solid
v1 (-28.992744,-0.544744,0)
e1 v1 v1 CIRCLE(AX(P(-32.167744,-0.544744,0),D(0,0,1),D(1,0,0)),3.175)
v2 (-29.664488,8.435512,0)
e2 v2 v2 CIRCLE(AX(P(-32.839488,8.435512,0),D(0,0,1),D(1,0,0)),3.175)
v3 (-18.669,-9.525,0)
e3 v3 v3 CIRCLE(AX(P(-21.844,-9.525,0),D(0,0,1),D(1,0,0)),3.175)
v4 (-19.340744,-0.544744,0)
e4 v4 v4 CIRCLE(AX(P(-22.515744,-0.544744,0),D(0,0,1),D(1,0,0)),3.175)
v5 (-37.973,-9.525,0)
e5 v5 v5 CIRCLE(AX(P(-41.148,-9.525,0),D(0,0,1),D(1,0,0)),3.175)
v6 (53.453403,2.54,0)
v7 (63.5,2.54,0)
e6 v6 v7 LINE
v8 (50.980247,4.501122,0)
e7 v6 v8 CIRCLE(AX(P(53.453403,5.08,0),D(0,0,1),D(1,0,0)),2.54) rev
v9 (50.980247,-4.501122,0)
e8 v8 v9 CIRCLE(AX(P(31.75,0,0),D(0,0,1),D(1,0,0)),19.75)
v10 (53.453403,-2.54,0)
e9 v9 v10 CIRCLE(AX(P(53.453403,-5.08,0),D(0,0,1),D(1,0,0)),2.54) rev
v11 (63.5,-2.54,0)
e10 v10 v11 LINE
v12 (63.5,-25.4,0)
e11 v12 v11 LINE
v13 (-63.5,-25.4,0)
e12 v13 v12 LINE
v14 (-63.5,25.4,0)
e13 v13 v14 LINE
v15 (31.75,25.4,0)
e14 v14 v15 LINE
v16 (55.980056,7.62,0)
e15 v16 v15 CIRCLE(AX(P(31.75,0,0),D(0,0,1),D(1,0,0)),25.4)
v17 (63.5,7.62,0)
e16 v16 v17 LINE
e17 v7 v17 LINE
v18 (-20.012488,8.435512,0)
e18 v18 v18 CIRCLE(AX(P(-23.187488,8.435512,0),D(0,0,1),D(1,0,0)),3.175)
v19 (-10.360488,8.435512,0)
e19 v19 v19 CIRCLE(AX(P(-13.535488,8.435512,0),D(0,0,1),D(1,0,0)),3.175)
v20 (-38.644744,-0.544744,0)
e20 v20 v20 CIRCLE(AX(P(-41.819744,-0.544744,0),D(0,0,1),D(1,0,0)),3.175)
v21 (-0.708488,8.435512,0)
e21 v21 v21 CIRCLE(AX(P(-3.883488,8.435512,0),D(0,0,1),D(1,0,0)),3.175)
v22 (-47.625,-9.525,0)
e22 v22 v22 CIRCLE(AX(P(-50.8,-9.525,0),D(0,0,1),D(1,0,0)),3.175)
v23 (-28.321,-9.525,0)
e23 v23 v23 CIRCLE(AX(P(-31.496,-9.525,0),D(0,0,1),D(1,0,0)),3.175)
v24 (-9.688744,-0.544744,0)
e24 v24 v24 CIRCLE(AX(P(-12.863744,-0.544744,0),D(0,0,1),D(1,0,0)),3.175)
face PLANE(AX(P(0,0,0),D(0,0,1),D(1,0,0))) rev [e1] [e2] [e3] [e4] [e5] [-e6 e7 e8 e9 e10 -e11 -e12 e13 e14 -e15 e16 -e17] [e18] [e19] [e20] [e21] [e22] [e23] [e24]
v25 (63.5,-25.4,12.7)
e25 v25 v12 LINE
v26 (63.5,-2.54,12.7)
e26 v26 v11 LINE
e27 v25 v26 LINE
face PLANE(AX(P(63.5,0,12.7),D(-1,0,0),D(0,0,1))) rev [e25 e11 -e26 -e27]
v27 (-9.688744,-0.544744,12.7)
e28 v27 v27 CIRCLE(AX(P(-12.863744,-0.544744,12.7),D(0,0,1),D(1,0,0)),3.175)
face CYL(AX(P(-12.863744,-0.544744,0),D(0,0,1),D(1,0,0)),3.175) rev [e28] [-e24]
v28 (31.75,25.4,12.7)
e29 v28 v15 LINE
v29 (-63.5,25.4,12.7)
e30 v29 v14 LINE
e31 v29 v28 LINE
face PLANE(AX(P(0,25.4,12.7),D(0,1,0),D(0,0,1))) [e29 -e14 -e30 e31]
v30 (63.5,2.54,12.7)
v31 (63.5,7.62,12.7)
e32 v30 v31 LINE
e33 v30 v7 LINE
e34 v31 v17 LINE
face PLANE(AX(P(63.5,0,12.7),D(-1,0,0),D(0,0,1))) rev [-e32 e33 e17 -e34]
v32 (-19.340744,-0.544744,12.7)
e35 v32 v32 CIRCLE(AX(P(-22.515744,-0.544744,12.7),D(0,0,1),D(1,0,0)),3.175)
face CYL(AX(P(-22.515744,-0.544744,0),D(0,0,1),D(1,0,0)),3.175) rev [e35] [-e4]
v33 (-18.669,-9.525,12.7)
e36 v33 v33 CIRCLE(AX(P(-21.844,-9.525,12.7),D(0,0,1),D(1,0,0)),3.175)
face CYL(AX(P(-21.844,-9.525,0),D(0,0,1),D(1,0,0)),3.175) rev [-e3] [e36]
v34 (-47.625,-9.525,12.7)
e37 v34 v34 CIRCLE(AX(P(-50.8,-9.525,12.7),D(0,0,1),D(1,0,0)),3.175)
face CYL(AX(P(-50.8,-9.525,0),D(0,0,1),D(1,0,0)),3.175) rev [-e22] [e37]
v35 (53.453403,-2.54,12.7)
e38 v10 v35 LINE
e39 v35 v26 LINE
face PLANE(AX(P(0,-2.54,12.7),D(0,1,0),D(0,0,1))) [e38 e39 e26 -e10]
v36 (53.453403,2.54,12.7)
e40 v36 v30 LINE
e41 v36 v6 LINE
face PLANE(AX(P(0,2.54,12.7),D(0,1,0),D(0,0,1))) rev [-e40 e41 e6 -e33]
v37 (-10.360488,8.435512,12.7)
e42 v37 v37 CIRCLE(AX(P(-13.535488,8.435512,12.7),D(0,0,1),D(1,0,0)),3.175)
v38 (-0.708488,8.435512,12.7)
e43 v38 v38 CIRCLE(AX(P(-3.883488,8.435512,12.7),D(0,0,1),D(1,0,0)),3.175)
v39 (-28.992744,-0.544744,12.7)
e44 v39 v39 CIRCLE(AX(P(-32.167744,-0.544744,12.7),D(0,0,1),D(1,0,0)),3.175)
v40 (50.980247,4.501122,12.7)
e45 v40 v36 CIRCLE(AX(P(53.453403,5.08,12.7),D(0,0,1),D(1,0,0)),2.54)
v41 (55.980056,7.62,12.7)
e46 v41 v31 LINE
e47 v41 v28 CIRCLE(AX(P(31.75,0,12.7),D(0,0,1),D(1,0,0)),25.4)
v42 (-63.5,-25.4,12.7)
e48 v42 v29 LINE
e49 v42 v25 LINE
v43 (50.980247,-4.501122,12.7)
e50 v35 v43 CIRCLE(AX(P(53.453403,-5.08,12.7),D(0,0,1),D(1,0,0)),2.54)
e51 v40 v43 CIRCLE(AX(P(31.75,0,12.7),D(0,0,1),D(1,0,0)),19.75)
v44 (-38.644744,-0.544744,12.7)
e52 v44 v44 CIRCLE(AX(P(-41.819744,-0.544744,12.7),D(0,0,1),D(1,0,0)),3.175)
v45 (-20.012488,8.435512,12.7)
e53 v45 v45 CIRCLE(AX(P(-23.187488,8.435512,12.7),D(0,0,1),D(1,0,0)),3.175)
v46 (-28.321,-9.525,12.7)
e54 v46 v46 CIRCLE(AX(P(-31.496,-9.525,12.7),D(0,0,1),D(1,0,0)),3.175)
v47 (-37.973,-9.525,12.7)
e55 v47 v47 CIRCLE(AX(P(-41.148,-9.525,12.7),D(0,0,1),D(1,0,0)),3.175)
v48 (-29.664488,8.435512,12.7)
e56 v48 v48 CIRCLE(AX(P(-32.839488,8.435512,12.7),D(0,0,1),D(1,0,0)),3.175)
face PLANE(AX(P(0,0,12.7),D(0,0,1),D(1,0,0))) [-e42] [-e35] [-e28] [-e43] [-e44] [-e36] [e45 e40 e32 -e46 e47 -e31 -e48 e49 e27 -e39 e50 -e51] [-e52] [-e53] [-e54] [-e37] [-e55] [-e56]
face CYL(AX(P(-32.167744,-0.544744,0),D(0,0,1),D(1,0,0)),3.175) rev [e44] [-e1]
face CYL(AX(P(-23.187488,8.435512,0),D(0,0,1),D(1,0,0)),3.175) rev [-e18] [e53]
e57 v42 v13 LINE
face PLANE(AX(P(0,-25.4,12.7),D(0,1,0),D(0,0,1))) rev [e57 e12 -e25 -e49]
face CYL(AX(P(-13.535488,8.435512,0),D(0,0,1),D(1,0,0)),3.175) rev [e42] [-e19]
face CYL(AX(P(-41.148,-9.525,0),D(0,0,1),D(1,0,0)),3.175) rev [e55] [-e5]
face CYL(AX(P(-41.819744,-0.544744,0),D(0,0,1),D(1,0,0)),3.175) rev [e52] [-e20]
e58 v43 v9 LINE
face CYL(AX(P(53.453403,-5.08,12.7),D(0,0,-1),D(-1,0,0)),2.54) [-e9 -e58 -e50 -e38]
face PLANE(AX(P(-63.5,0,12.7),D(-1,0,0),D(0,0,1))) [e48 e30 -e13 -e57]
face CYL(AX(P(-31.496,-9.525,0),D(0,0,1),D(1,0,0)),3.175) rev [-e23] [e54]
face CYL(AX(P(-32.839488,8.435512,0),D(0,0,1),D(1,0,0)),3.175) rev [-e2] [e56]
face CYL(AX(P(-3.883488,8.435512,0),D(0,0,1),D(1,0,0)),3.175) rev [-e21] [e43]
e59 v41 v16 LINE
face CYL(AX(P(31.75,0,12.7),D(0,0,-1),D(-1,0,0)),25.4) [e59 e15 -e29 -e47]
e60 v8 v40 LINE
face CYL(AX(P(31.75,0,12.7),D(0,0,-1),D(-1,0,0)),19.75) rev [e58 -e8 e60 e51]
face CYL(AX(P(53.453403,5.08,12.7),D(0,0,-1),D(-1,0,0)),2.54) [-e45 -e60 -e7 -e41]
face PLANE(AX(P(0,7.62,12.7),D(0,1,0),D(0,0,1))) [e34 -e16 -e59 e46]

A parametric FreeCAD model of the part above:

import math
import FreeCAD as App
import Part
import Sketcher

V = App.Vector
Q = App.Units.Quantity


def edges_at(feature, points):
    """Names of the edges that pass closest to the given points."""
    edges = feature.Shape.Edges
    near = lambda p: min(range(len(edges)), key=lambda i: edges[i].distToShape(Part.Vertex(*p))[0])
    return sorted({f"Edge{near(p) + 1}" for p in points})

doc = App.newDocument("Part")
body = doc.addObject("PartDesign::Body", "Body")

# Sketch on XY plane
sketch1 = body.newObject("Sketcher::SketchObject", "Sketch")
sketch1.AttachmentSupport = (doc.getObject("XY_Plane"), [""])
sketch1.MapMode = "FlatFace"
sketch1.addGeometry([
    Part.LineSegment(V(31.75, 25.4, 0), V(-63.5, 25.4, 0)),  # 0
    Part.LineSegment(V(-63.5, 25.4, 0), V(-63.5, -25.4, 0)),  # 1
    Part.LineSegment(V(-63.5, -25.4, 0), V(63.5, -25.4, 0)),  # 2
    Part.LineSegment(V(63.5, -25.4, 0), V(63.5, -2.54, 0)),  # 3
    Part.LineSegment(V(63.5, -2.54, 0), V(51.335987, -2.54, 0)),  # 4
    Part.ArcOfCircle(Part.Circle(V(31.75, 0, 0), V(0, 0, 1), 19.75), math.radians(-22.694829), math.radians(-7.389138)),  # 5
    Part.ArcOfCircle(Part.Circle(V(31.75, 0, 0), V(0, 0, 1), 19.75), math.radians(22.694829), math.radians(337.305171)),  # 6
    Part.ArcOfCircle(Part.Circle(V(31.75, 0, 0), V(0, 0, 1), 19.75), math.radians(7.389138), math.radians(22.694829)),  # 7
    Part.LineSegment(V(51.335987, 2.54, 0), V(63.5, 2.54, 0)),  # 8
    Part.LineSegment(V(63.5, 2.54, 0), V(63.5, 7.62, 0)),  # 9
    Part.LineSegment(V(63.5, 7.62, 0), V(55.980056, 7.62, 0)),  # 10
    Part.ArcOfCircle(Part.Circle(V(31.75, 0, 0), V(0, 0, 1), 25.4), math.radians(17.457603), math.radians(90)),  # 11
], False)
sketch1.addConstraint([
    Sketcher.Constraint("Coincident", 0, 2, 1, 1),
    Sketcher.Constraint("Coincident", 1, 2, 2, 1),
    Sketcher.Constraint("Coincident", 2, 2, 3, 1),
    Sketcher.Constraint("Coincident", 3, 2, 4, 1),
    Sketcher.Constraint("Coincident", 4, 2, 5, 2),
    Sketcher.Constraint("Tangent", 5, 1, 6, 2),
    Sketcher.Constraint("Tangent", 6, 1, 7, 2),
    Sketcher.Constraint("Coincident", 7, 1, 8, 1),
    Sketcher.Constraint("Coincident", 8, 2, 9, 1),
    Sketcher.Constraint("Coincident", 9, 2, 10, 1),
    Sketcher.Constraint("Coincident", 10, 2, 11, 1),
    Sketcher.Constraint("Tangent", 11, 2, 0, 1),
    Sketcher.Constraint("Horizontal", 0),
    Sketcher.Constraint("Vertical", 1),
    Sketcher.Constraint("Horizontal", 2),
    Sketcher.Constraint("Vertical", 3),
    Sketcher.Constraint("Horizontal", 4),
    Sketcher.Constraint("Horizontal", 8),
    Sketcher.Constraint("Vertical", 9),
    Sketcher.Constraint("Horizontal", 10),
    Sketcher.Constraint("Coincident", 7, 3, 5, 3),
    Sketcher.Constraint("Coincident", 11, 3, 5, 3),
    Sketcher.Constraint("Symmetric", 0, 2, 2, 2, -1, 1),
    Sketcher.Constraint("Symmetric", 5, 1, 6, 1, -1),
    Sketcher.Constraint("Symmetric", 3, 2, 8, 2, -1),
    Sketcher.Constraint("Horizontal", 6, 1, 9, 2),
    Sketcher.Constraint("Radius", 11, Q("1 in")),
    Sketcher.Constraint("DistanceX", 2, 1, 2, 2, Q("5 in")),
    Sketcher.Constraint("DistanceY", 3, 1, 3, 2, Q("0.9 in")),
    Sketcher.Constraint("DistanceY", 9, 1, 9, 2, Q("0.2 in")),
    Sketcher.Constraint("DistanceX", 0, 2, 0, 1, Q("3.75 in")),
    Sketcher.Constraint("Radius", 5, Q("19.75 mm")),
])
pad1 = body.newObject("PartDesign::Pad", "Pad")
pad1.Profile = sketch1
pad1.Length = Q("0.5 in")
doc.recompute()

fillet = body.newObject("PartDesign::Fillet", "Fillet")
fillet.Base = (pad1, edges_at(pad1, [(51.336, 2.54, 6.35), (51.336, -2.54, 6.35)]))
fillet.Radius = Q("0.1 in")

# Sketch on XY plane
sketch2 = body.newObject("Sketcher::SketchObject", "Sketch001")
sketch2.AttachmentSupport = (doc.getObject("XY_Plane"), [""])
sketch2.MapMode = "FlatFace"
sketch2.AttachmentOffset = App.Placement(V(0, 0, 0.5 * 25.4), App.Rotation())
sketch2.addGeometry([
    Part.Circle(V(-50.8, -9.525, 0), V(0, 0, 1), 3.175),  # 0
    Part.Circle(V(-41.819744, -0.544744, 0), V(0, 0, 1), 3.175),  # 1
    Part.Circle(V(-32.839488, 8.435512, 0), V(0, 0, 1), 3.175),  # 2
    Part.Circle(V(-41.148, -9.525, 0), V(0, 0, 1), 3.175),  # 3
    Part.Circle(V(-32.167744, -0.544744, 0), V(0, 0, 1), 3.175),  # 4
    Part.Circle(V(-23.187488, 8.435512, 0), V(0, 0, 1), 3.175),  # 5
    Part.Circle(V(-31.496, -9.525, 0), V(0, 0, 1), 3.175),  # 6
    Part.Circle(V(-22.515744, -0.544744, 0), V(0, 0, 1), 3.175),  # 7
    Part.Circle(V(-13.535488, 8.435512, 0), V(0, 0, 1), 3.175),  # 8
    Part.Circle(V(-21.844, -9.525, 0), V(0, 0, 1), 3.175),  # 9
    Part.Circle(V(-12.863744, -0.544744, 0), V(0, 0, 1), 3.175),  # 10
    Part.Circle(V(-3.883488, 8.435512, 0), V(0, 0, 1), 3.175),  # 11
], False)
sketch2.addConstraint([
    Sketcher.Constraint("Equal", 0, 1),
    Sketcher.Constraint("Equal", 1, 2),
    Sketcher.Constraint("Equal", 2, 3),
    Sketcher.Constraint("Equal", 3, 4),
    Sketcher.Constraint("Equal", 4, 5),
    Sketcher.Constraint("Equal", 5, 6),
    Sketcher.Constraint("Equal", 6, 7),
    Sketcher.Constraint("Equal", 7, 8),
    Sketcher.Constraint("Equal", 8, 9),
    Sketcher.Constraint("Equal", 9, 10),
    Sketcher.Constraint("Equal", 10, 11),
    Sketcher.Constraint("Horizontal", 0, 3, 3, 3),
    Sketcher.Constraint("Horizontal", 1, 3, 4, 3),
    Sketcher.Constraint("Horizontal", 2, 3, 5, 3),
    Sketcher.Constraint("Horizontal", 3, 3, 6, 3),
    Sketcher.Constraint("Horizontal", 4, 3, 7, 3),
    Sketcher.Constraint("Horizontal", 5, 3, 8, 3),
    Sketcher.Constraint("Horizontal", 6, 3, 9, 3),
    Sketcher.Constraint("Horizontal", 7, 3, 10, 3),
    Sketcher.Constraint("Horizontal", 8, 3, 11, 3),
    Sketcher.Constraint("Diameter", 0, Q("0.25 in")),
    Sketcher.Constraint("DistanceX", 0, 3, -1, 1, Q("2 in")),
    Sketcher.Constraint("DistanceX", 3, 3, -1, 1, Q("1.62 in")),
    Sketcher.Constraint("DistanceX", 6, 3, -1, 1, Q("1.24 in")),
    Sketcher.Constraint("DistanceX", 9, 3, -1, 1, Q("0.86 in")),
    Sketcher.Constraint("DistanceX", 1, 3, 4, 3, Q("0.38 in")),
    Sketcher.Constraint("DistanceX", 2, 3, 5, 3, Q("0.38 in")),
    Sketcher.Constraint("DistanceX", 4, 3, 7, 3, Q("0.38 in")),
    Sketcher.Constraint("DistanceX", 5, 3, 8, 3, Q("0.38 in")),
    Sketcher.Constraint("DistanceX", 7, 3, 10, 3, Q("0.38 in")),
    Sketcher.Constraint("DistanceX", 8, 3, 11, 3, Q("0.38 in")),
    Sketcher.Constraint("DistanceY", 0, 3, -1, 1, Q("0.375 in")),
    Sketcher.Constraint("DistanceX", 1, 3, -1, 1, Q("41.819744 mm")),
    Sketcher.Constraint("DistanceY", 1, 3, -1, 1, Q("0.544744 mm")),
    Sketcher.Constraint("DistanceX", 2, 3, -1, 1, Q("32.839488 mm")),
    Sketcher.Constraint("DistanceY", -1, 1, 2, 3, Q("8.435512 mm")),
])
pocket1 = body.newObject("PartDesign::Pocket", "Pocket")
pocket1.Profile = sketch2
pocket1.Length = Q("0.5 in")

doc.recompute()
